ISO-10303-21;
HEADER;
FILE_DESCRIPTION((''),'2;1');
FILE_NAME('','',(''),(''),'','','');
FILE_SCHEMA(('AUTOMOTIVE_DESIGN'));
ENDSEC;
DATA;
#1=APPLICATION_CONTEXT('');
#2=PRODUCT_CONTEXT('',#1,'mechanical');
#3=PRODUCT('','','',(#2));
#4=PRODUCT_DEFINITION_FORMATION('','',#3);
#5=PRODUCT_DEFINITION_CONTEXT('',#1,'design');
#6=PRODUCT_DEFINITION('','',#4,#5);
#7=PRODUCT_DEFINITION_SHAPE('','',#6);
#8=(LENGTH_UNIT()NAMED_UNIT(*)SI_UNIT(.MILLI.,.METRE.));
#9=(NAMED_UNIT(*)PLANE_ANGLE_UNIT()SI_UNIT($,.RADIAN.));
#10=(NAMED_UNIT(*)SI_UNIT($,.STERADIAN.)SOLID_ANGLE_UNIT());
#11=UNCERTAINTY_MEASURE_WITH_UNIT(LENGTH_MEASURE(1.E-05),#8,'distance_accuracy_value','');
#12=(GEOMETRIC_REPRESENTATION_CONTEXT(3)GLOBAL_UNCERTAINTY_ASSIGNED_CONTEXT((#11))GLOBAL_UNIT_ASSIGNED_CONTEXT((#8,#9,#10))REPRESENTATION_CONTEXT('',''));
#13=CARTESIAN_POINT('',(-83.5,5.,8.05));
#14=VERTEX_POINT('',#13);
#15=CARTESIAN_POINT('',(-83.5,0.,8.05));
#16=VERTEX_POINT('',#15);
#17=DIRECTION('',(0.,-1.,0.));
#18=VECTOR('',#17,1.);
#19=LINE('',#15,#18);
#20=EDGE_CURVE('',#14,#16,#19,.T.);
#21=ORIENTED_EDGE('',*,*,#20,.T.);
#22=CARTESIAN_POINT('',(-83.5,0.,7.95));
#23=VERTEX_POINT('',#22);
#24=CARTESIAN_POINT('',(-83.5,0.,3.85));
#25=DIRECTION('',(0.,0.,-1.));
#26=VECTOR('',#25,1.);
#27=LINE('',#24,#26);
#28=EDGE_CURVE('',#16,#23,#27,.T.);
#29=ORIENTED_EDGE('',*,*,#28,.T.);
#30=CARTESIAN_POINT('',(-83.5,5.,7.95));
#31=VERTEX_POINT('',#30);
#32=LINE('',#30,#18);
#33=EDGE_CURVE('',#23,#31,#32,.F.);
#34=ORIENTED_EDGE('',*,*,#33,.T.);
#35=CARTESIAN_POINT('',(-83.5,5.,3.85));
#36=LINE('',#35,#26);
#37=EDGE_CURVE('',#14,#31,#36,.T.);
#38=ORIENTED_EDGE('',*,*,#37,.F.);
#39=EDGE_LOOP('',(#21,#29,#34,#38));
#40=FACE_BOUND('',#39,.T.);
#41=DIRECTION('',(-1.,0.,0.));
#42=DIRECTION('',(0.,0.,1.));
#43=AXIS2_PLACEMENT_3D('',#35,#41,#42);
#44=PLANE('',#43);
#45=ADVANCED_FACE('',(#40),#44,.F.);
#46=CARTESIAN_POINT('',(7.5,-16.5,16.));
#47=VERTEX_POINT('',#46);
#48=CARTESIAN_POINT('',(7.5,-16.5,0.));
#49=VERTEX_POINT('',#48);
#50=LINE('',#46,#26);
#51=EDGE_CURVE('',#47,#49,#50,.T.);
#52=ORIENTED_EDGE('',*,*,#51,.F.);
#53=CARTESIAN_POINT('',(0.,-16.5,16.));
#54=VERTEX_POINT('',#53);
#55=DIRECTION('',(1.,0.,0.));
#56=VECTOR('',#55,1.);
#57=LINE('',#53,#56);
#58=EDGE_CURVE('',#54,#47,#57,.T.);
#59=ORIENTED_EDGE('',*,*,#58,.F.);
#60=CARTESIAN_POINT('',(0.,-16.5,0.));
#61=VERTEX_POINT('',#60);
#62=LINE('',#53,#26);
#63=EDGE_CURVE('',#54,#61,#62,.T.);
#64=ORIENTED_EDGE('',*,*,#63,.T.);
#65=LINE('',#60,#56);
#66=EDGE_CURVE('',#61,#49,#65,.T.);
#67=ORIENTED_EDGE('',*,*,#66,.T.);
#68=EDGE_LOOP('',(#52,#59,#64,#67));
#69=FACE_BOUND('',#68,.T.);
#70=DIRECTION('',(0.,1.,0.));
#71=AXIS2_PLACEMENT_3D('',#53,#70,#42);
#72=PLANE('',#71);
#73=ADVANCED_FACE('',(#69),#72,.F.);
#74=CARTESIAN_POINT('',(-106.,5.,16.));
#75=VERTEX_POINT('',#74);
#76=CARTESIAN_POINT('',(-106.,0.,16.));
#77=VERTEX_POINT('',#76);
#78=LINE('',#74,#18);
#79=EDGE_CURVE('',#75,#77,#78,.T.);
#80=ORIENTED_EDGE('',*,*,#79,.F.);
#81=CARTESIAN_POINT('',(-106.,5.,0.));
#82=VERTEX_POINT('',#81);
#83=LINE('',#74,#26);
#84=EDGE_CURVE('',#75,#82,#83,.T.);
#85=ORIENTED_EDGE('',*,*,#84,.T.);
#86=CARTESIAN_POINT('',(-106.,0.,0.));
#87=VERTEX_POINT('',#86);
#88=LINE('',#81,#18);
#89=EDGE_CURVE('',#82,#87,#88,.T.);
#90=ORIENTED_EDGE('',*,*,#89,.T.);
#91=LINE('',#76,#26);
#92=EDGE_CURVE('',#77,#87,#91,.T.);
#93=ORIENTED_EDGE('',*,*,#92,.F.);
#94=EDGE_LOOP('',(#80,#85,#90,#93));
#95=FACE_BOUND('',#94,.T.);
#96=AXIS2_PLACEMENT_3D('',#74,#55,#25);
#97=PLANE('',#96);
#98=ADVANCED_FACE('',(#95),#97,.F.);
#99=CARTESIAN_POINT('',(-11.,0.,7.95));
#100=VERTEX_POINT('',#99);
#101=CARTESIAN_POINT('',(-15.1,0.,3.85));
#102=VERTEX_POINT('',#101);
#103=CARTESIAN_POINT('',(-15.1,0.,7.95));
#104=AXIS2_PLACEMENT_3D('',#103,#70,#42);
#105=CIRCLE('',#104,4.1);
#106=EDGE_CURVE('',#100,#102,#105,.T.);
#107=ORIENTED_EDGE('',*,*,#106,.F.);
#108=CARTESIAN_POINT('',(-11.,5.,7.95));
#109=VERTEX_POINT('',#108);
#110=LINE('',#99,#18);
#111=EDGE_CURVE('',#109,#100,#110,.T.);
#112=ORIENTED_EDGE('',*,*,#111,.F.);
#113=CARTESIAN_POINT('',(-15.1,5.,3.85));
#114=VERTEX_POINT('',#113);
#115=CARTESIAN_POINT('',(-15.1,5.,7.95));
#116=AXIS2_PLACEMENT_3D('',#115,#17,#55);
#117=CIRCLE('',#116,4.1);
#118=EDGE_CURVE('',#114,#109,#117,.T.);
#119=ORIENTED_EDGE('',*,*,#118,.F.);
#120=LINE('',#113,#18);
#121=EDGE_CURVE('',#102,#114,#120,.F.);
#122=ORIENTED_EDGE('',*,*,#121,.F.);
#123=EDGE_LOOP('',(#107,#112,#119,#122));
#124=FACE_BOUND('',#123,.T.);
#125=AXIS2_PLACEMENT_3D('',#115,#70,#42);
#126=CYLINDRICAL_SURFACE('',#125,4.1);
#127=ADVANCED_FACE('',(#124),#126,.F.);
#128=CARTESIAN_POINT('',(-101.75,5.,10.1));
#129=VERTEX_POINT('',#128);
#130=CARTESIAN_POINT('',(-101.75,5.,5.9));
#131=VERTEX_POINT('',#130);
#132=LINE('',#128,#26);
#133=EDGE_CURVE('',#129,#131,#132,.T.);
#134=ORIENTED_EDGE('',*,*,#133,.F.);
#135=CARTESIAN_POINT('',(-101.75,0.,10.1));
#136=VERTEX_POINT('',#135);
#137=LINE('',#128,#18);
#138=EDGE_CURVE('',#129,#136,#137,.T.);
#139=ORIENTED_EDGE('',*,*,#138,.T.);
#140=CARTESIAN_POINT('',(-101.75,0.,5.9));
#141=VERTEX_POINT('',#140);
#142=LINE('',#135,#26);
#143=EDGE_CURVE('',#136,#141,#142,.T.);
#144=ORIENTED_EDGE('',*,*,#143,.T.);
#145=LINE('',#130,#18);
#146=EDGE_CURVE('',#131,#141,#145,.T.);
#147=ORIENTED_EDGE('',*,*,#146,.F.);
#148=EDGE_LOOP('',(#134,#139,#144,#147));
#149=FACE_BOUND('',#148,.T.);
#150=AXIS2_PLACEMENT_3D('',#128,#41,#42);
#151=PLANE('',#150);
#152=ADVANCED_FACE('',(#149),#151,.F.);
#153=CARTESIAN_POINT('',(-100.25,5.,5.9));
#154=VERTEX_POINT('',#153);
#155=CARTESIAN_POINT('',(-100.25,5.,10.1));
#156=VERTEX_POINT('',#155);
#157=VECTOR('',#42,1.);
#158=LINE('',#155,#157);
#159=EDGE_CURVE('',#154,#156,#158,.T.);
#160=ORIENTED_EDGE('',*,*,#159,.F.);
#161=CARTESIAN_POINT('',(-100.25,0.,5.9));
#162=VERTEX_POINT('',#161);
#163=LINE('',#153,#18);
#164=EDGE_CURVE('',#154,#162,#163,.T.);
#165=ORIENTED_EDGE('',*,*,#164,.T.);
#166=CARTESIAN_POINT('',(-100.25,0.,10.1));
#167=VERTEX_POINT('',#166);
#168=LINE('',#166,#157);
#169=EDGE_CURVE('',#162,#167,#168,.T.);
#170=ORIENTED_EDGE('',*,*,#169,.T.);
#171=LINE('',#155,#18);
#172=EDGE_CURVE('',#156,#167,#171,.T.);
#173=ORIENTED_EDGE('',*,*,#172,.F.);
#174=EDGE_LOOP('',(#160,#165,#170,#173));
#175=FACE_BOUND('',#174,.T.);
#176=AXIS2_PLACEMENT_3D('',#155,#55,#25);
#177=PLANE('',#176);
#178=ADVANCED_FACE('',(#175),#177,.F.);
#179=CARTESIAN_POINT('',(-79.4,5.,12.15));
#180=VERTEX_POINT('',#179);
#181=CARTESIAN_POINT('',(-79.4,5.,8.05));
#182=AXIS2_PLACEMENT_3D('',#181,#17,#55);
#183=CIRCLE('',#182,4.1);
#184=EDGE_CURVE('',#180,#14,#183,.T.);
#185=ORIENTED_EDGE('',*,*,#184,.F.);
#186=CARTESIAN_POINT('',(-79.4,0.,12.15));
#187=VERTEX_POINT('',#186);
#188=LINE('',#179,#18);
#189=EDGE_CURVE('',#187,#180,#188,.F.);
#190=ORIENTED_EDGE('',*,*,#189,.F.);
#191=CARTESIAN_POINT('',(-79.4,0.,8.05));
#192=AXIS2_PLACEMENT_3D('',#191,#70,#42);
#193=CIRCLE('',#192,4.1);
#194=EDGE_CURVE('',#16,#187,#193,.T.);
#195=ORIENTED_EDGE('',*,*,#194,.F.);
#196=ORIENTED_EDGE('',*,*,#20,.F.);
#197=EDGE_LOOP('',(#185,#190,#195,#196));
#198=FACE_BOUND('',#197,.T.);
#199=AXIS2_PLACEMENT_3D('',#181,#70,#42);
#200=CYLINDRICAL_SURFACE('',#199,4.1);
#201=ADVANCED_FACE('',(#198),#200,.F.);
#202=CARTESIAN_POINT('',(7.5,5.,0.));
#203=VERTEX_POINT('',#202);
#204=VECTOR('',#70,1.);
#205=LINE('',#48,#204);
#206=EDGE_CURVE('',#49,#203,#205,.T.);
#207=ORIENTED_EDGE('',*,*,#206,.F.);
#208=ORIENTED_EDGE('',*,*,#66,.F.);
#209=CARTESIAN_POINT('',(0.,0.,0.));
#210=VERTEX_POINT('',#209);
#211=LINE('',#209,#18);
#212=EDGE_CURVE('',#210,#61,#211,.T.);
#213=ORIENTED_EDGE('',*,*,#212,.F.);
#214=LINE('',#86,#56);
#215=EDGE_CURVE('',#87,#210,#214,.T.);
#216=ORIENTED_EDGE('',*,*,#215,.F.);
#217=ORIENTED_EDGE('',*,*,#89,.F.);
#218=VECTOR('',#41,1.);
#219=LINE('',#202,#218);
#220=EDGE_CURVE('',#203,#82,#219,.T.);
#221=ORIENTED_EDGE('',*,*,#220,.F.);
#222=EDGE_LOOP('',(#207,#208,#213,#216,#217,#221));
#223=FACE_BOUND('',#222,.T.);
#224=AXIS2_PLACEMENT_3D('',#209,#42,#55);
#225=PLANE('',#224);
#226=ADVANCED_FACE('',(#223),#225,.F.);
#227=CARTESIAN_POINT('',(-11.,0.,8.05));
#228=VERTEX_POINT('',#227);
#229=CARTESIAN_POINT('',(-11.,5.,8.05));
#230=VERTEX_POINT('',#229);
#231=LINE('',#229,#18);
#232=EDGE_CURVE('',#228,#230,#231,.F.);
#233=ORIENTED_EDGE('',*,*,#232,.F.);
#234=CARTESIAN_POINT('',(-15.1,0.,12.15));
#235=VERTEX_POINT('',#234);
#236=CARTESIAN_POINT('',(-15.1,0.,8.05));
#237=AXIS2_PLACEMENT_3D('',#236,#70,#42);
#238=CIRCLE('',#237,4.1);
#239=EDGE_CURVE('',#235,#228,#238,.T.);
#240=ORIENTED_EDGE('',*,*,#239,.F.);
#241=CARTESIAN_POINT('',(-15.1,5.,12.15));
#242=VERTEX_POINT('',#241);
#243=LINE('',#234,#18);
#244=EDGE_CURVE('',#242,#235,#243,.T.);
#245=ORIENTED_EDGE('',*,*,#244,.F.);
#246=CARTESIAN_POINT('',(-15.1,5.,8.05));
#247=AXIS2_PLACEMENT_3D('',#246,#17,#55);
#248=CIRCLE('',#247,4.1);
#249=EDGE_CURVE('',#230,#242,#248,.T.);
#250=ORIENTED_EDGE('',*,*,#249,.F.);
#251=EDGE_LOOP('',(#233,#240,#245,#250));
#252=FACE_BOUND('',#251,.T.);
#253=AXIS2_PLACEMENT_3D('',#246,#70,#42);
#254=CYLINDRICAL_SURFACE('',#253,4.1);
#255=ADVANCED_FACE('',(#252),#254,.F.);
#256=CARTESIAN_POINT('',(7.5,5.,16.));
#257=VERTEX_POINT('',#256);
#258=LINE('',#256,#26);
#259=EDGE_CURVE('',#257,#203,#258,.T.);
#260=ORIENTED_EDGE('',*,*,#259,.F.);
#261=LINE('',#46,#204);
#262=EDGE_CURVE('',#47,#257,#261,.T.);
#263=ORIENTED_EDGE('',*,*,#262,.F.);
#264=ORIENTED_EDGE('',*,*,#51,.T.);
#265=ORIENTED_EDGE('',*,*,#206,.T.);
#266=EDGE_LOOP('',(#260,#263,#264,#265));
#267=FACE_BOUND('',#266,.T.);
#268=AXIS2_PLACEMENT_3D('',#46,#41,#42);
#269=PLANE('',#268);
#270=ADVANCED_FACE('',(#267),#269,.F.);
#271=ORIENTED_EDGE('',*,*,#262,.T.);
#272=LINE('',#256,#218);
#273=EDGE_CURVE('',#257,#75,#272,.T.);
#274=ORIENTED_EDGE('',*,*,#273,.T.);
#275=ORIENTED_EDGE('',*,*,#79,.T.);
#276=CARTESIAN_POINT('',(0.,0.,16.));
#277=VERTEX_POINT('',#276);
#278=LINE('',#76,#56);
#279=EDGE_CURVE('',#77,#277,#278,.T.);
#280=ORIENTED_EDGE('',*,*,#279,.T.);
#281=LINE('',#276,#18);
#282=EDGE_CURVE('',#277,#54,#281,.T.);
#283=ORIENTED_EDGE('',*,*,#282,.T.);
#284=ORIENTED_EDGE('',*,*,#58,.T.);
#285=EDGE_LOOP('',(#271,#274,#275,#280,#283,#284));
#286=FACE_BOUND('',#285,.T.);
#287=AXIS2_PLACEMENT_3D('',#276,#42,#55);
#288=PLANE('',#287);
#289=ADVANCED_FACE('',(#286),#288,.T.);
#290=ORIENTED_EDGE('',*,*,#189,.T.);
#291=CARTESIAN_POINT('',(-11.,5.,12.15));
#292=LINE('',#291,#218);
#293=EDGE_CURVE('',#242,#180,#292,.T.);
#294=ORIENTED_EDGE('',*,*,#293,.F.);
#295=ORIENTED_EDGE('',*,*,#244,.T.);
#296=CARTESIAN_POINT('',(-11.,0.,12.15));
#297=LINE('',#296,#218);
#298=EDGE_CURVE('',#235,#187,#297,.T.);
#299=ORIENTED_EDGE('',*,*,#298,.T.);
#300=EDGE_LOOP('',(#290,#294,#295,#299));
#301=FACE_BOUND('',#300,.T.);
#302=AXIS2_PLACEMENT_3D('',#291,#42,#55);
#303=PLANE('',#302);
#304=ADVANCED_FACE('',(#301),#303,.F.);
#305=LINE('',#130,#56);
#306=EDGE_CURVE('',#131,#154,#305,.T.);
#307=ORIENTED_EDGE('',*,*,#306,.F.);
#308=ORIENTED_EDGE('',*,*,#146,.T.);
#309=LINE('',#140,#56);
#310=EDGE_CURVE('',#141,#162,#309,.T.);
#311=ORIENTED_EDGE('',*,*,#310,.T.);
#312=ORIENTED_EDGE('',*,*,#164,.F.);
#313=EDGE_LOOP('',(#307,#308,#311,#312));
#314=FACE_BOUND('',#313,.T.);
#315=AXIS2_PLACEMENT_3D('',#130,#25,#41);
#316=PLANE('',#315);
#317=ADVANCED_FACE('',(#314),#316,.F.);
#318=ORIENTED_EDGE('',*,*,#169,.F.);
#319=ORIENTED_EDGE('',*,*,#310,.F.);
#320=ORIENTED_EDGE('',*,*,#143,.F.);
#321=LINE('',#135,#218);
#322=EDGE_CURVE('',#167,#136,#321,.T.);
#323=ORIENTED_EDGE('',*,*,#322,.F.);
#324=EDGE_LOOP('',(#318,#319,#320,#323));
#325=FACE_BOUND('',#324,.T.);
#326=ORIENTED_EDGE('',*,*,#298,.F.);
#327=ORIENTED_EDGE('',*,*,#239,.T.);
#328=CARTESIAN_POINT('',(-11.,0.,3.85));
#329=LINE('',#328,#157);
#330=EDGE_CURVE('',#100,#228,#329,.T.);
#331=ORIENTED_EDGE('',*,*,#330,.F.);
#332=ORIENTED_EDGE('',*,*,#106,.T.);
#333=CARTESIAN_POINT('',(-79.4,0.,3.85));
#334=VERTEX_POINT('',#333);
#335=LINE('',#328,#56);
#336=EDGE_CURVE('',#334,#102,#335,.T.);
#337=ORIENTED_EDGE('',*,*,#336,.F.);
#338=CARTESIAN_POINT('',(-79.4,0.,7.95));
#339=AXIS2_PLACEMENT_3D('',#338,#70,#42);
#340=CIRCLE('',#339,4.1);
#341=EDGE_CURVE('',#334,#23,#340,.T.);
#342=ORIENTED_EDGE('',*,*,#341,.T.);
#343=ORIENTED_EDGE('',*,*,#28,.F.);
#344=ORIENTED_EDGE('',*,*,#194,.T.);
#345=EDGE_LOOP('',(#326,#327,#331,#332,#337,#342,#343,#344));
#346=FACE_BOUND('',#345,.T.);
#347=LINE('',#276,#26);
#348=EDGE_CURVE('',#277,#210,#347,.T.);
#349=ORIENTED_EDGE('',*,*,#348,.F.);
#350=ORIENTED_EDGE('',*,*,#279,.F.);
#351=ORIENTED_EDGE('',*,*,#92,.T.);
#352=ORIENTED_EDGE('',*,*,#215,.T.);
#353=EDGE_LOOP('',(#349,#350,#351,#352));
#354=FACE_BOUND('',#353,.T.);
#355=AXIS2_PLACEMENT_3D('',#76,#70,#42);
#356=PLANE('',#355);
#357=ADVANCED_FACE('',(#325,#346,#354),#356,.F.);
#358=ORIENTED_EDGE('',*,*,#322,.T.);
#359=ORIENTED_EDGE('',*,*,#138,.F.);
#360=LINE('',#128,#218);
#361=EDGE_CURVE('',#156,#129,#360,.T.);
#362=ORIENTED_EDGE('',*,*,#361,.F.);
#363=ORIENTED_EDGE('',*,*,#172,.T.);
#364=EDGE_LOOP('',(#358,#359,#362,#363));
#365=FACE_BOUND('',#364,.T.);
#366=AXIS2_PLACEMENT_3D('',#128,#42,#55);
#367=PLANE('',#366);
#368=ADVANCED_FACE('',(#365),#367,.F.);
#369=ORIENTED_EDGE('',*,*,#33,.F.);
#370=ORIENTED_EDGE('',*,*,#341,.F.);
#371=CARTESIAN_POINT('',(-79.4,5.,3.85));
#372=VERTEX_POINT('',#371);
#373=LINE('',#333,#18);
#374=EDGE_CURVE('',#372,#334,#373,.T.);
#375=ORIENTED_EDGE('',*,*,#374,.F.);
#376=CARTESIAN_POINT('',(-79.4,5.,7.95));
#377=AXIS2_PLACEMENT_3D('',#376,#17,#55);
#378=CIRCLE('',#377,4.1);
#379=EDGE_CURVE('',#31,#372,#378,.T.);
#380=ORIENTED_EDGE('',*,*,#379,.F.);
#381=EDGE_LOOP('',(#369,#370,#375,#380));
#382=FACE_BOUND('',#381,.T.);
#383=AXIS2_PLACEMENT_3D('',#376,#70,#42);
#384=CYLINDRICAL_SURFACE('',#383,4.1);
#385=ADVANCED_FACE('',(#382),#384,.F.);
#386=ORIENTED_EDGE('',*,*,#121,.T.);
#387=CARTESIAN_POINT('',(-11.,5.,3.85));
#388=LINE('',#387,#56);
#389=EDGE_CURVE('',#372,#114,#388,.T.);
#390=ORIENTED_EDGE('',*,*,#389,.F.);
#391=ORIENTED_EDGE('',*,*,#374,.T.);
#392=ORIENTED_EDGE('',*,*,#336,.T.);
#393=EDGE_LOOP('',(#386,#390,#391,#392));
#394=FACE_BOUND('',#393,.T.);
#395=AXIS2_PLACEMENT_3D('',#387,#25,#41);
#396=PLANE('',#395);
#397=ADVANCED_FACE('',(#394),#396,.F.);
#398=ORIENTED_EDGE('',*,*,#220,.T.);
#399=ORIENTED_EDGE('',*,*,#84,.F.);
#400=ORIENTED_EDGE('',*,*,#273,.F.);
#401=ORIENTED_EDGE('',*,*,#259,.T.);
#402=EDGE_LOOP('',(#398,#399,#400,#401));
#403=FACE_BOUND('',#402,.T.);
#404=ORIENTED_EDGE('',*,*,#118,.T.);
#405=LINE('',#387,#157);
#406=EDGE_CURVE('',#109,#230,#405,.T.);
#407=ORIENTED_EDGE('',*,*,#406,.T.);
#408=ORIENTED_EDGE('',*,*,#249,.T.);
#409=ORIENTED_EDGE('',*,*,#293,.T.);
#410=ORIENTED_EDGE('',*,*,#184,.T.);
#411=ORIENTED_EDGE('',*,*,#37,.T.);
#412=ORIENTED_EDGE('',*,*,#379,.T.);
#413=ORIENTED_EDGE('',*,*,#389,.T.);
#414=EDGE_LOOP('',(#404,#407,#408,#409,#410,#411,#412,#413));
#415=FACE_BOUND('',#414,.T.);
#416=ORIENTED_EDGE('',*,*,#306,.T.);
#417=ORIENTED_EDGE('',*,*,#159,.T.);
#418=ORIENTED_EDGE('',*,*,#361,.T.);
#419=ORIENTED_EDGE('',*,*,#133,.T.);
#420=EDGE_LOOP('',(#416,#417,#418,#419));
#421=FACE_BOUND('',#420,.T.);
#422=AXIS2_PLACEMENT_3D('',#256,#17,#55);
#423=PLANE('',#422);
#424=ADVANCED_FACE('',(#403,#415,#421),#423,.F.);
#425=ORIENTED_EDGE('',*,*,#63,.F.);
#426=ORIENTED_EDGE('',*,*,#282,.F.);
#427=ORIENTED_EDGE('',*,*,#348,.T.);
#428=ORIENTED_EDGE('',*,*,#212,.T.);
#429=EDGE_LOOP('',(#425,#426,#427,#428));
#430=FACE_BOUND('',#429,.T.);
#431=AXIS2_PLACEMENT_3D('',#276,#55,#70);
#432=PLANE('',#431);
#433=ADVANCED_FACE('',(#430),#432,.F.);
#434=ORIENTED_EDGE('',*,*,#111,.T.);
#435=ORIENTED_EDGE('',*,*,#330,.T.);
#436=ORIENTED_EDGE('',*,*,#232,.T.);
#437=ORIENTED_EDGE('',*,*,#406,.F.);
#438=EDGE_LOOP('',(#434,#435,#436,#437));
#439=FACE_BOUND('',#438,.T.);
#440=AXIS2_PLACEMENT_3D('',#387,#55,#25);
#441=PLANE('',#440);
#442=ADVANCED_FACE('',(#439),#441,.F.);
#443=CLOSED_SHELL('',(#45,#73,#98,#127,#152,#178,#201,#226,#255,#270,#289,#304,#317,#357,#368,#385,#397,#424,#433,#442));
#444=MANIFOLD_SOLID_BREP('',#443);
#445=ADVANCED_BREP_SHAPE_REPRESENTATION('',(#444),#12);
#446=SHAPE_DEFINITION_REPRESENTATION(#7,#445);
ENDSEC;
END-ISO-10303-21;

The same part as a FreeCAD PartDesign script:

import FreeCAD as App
import Part
import Sketcher
Q = App.Units.Quantity


def edges_at(feature, points):
    """Names of the edges that pass closest to the given points."""
    edges = feature.Shape.Edges
    near = lambda p: min(range(len(edges)), key=lambda i: edges[i].distToShape(Part.Vertex(*p))[0])
    return sorted({f"Edge{near(p) + 1}" for p in points})

doc = App.newDocument("Part")
body = doc.addObject("PartDesign::Body", "Body")

sketch1 = doc.addObject("Sketcher::SketchObject", "Sketch")
body.addObject(sketch1)
sketch1.AttachmentSupport = (doc.XY_Plane, [""])
sketch1.MapMode = "FlatFace"
sketch1.addGeometry([
    Part.LineSegment(App.Vector(-106, 0, 0), App.Vector(0, 0, 0)),
    Part.LineSegment(App.Vector(0, 0, 0), App.Vector(0, -16, 0)),
    Part.LineSegment(App.Vector(0, -16, 0), App.Vector(8, -16, 0)),
    Part.LineSegment(App.Vector(8, -16, 0), App.Vector(8, 5, 0)),
    Part.LineSegment(App.Vector(8, 5, 0), App.Vector(-106, 5, 0)),
    Part.LineSegment(App.Vector(-106, 5, 0), App.Vector(-106, 0, 0)),
], False)
sketch1.addConstraint([
    Sketcher.Constraint("Coincident", 0, 2, 1, 1),
    Sketcher.Constraint("Coincident", 1, 2, 2, 1),
    Sketcher.Constraint("Coincident", 2, 2, 3, 1),
    Sketcher.Constraint("Coincident", 3, 2, 4, 1),
    Sketcher.Constraint("Coincident", 4, 2, 5, 1),
    Sketcher.Constraint("Coincident", 5, 2, 0, 1),
    Sketcher.Constraint("Horizontal", 0),
    Sketcher.Constraint("Vertical", 1),
    Sketcher.Constraint("Horizontal", 2),
    Sketcher.Constraint("Vertical", 3),
    Sketcher.Constraint("Horizontal", 4),
    Sketcher.Constraint("Vertical", 5),
    Sketcher.Constraint("Coincident", 0, 2, -1, 1),
    Sketcher.Constraint("DistanceX", 0, 1, 0, 2, Q("106 mm")),
    Sketcher.Constraint("DistanceY", 5, 2, 5, 1, Q("5 mm")),
    Sketcher.Constraint("DistanceX", 2, 1, 2, 2, Q("7.5 mm")),
    Sketcher.Constraint("DistanceY", 1, 2, 1, 1, Q("16.5 mm")),
])
pad1 = doc.addObject("PartDesign::Pad", "Pad")
body.addObject(pad1)
pad1.Profile = sketch1
pad1.Length = 16

sketch2 = doc.addObject("Sketcher::SketchObject", "Sketch001")
body.addObject(sketch2)
sketch2.AttachmentSupport = (doc.XZ_Plane, [""])
sketch2.MapMode = "FlatFace"
sketch2.addGeometry([
    Part.LineSegment(App.Vector(-101.8, 10.1, 0), App.Vector(-101.8, 5.9, 0)),
    Part.LineSegment(App.Vector(-101.8, 5.9, 0), App.Vector(-100.2, 5.9, 0)),
    Part.LineSegment(App.Vector(-100.2, 5.9, 0), App.Vector(-100.2, 10.1, 0)),
    Part.LineSegment(App.Vector(-100.2, 10.1, 0), App.Vector(-101.8, 10.1, 0)),
    Part.LineSegment(App.Vector(-83.5, 12.2, 0), App.Vector(-83.5, 3.9, 0)),
    Part.LineSegment(App.Vector(-83.5, 3.9, 0), App.Vector(-11, 3.9, 0)),
    Part.LineSegment(App.Vector(-11, 3.9, 0), App.Vector(-11, 12.2, 0)),
    Part.LineSegment(App.Vector(-11, 12.2, 0), App.Vector(-83.5, 12.2, 0)),
], False)
sketch2.addConstraint([
    Sketcher.Constraint("Coincident", 0, 2, 1, 1),
    Sketcher.Constraint("Coincident", 1, 2, 2, 1),
    Sketcher.Constraint("Coincident", 2, 2, 3, 1),
    Sketcher.Constraint("Coincident", 3, 2, 0, 1),
    Sketcher.Constraint("Coincident", 4, 2, 5, 1),
    Sketcher.Constraint("Coincident", 5, 2, 6, 1),
    Sketcher.Constraint("Coincident", 6, 2, 7, 1),
    Sketcher.Constraint("Coincident", 7, 2, 4, 1),
    Sketcher.Constraint("Vertical", 0),
    Sketcher.Constraint("Horizontal", 1),
    Sketcher.Constraint("Vertical", 2),
    Sketcher.Constraint("Horizontal", 3),
    Sketcher.Constraint("Vertical", 4),
    Sketcher.Constraint("Horizontal", 5),
    Sketcher.Constraint("Vertical", 6),
    Sketcher.Constraint("Horizontal", 7),
    Sketcher.Constraint("DistanceX", 1, 1, 1, 2, Q("1.5 mm")),
    Sketcher.Constraint("DistanceX", 5, 1, 5, 2, Q("72.5 mm")),
    Sketcher.Constraint("DistanceY", 0, 2, 0, 1, Q("4.2 mm")),
    Sketcher.Constraint("DistanceY", 4, 2, 4, 1, Q("8.3 mm")),
    Sketcher.Constraint("DistanceX", 5, 2, -1, 1, Q("11 mm")),
    Sketcher.Constraint("DistanceY", -1, 1, 0, 2, Q("5.9 mm")),
    Sketcher.Constraint("DistanceX", 0, 2, -1, 1, Q("101.75 mm")),
    Sketcher.Constraint("DistanceY", -1, 1, 4, 2, Q("3.85 mm")),
])
pocket1 = doc.addObject("PartDesign::Pocket", "Pocket")
body.addObject(pocket1)
pocket1.Profile = sketch2
pocket1.Type = "ThroughAll"
doc.recompute()

fillet = doc.addObject("PartDesign::Fillet", "Fillet")
body.addObject(fillet)
fillet.Base = (pocket1, edges_at(pocket1, [
    (-83.5, 2.5, 3.85),
    (-83.5, 2.5, 12.15),
    (-11, 2.5, 12.15),
    (-11, 2.5, 3.85),
]))
fillet.Radius = 4.1

doc.recompute()
